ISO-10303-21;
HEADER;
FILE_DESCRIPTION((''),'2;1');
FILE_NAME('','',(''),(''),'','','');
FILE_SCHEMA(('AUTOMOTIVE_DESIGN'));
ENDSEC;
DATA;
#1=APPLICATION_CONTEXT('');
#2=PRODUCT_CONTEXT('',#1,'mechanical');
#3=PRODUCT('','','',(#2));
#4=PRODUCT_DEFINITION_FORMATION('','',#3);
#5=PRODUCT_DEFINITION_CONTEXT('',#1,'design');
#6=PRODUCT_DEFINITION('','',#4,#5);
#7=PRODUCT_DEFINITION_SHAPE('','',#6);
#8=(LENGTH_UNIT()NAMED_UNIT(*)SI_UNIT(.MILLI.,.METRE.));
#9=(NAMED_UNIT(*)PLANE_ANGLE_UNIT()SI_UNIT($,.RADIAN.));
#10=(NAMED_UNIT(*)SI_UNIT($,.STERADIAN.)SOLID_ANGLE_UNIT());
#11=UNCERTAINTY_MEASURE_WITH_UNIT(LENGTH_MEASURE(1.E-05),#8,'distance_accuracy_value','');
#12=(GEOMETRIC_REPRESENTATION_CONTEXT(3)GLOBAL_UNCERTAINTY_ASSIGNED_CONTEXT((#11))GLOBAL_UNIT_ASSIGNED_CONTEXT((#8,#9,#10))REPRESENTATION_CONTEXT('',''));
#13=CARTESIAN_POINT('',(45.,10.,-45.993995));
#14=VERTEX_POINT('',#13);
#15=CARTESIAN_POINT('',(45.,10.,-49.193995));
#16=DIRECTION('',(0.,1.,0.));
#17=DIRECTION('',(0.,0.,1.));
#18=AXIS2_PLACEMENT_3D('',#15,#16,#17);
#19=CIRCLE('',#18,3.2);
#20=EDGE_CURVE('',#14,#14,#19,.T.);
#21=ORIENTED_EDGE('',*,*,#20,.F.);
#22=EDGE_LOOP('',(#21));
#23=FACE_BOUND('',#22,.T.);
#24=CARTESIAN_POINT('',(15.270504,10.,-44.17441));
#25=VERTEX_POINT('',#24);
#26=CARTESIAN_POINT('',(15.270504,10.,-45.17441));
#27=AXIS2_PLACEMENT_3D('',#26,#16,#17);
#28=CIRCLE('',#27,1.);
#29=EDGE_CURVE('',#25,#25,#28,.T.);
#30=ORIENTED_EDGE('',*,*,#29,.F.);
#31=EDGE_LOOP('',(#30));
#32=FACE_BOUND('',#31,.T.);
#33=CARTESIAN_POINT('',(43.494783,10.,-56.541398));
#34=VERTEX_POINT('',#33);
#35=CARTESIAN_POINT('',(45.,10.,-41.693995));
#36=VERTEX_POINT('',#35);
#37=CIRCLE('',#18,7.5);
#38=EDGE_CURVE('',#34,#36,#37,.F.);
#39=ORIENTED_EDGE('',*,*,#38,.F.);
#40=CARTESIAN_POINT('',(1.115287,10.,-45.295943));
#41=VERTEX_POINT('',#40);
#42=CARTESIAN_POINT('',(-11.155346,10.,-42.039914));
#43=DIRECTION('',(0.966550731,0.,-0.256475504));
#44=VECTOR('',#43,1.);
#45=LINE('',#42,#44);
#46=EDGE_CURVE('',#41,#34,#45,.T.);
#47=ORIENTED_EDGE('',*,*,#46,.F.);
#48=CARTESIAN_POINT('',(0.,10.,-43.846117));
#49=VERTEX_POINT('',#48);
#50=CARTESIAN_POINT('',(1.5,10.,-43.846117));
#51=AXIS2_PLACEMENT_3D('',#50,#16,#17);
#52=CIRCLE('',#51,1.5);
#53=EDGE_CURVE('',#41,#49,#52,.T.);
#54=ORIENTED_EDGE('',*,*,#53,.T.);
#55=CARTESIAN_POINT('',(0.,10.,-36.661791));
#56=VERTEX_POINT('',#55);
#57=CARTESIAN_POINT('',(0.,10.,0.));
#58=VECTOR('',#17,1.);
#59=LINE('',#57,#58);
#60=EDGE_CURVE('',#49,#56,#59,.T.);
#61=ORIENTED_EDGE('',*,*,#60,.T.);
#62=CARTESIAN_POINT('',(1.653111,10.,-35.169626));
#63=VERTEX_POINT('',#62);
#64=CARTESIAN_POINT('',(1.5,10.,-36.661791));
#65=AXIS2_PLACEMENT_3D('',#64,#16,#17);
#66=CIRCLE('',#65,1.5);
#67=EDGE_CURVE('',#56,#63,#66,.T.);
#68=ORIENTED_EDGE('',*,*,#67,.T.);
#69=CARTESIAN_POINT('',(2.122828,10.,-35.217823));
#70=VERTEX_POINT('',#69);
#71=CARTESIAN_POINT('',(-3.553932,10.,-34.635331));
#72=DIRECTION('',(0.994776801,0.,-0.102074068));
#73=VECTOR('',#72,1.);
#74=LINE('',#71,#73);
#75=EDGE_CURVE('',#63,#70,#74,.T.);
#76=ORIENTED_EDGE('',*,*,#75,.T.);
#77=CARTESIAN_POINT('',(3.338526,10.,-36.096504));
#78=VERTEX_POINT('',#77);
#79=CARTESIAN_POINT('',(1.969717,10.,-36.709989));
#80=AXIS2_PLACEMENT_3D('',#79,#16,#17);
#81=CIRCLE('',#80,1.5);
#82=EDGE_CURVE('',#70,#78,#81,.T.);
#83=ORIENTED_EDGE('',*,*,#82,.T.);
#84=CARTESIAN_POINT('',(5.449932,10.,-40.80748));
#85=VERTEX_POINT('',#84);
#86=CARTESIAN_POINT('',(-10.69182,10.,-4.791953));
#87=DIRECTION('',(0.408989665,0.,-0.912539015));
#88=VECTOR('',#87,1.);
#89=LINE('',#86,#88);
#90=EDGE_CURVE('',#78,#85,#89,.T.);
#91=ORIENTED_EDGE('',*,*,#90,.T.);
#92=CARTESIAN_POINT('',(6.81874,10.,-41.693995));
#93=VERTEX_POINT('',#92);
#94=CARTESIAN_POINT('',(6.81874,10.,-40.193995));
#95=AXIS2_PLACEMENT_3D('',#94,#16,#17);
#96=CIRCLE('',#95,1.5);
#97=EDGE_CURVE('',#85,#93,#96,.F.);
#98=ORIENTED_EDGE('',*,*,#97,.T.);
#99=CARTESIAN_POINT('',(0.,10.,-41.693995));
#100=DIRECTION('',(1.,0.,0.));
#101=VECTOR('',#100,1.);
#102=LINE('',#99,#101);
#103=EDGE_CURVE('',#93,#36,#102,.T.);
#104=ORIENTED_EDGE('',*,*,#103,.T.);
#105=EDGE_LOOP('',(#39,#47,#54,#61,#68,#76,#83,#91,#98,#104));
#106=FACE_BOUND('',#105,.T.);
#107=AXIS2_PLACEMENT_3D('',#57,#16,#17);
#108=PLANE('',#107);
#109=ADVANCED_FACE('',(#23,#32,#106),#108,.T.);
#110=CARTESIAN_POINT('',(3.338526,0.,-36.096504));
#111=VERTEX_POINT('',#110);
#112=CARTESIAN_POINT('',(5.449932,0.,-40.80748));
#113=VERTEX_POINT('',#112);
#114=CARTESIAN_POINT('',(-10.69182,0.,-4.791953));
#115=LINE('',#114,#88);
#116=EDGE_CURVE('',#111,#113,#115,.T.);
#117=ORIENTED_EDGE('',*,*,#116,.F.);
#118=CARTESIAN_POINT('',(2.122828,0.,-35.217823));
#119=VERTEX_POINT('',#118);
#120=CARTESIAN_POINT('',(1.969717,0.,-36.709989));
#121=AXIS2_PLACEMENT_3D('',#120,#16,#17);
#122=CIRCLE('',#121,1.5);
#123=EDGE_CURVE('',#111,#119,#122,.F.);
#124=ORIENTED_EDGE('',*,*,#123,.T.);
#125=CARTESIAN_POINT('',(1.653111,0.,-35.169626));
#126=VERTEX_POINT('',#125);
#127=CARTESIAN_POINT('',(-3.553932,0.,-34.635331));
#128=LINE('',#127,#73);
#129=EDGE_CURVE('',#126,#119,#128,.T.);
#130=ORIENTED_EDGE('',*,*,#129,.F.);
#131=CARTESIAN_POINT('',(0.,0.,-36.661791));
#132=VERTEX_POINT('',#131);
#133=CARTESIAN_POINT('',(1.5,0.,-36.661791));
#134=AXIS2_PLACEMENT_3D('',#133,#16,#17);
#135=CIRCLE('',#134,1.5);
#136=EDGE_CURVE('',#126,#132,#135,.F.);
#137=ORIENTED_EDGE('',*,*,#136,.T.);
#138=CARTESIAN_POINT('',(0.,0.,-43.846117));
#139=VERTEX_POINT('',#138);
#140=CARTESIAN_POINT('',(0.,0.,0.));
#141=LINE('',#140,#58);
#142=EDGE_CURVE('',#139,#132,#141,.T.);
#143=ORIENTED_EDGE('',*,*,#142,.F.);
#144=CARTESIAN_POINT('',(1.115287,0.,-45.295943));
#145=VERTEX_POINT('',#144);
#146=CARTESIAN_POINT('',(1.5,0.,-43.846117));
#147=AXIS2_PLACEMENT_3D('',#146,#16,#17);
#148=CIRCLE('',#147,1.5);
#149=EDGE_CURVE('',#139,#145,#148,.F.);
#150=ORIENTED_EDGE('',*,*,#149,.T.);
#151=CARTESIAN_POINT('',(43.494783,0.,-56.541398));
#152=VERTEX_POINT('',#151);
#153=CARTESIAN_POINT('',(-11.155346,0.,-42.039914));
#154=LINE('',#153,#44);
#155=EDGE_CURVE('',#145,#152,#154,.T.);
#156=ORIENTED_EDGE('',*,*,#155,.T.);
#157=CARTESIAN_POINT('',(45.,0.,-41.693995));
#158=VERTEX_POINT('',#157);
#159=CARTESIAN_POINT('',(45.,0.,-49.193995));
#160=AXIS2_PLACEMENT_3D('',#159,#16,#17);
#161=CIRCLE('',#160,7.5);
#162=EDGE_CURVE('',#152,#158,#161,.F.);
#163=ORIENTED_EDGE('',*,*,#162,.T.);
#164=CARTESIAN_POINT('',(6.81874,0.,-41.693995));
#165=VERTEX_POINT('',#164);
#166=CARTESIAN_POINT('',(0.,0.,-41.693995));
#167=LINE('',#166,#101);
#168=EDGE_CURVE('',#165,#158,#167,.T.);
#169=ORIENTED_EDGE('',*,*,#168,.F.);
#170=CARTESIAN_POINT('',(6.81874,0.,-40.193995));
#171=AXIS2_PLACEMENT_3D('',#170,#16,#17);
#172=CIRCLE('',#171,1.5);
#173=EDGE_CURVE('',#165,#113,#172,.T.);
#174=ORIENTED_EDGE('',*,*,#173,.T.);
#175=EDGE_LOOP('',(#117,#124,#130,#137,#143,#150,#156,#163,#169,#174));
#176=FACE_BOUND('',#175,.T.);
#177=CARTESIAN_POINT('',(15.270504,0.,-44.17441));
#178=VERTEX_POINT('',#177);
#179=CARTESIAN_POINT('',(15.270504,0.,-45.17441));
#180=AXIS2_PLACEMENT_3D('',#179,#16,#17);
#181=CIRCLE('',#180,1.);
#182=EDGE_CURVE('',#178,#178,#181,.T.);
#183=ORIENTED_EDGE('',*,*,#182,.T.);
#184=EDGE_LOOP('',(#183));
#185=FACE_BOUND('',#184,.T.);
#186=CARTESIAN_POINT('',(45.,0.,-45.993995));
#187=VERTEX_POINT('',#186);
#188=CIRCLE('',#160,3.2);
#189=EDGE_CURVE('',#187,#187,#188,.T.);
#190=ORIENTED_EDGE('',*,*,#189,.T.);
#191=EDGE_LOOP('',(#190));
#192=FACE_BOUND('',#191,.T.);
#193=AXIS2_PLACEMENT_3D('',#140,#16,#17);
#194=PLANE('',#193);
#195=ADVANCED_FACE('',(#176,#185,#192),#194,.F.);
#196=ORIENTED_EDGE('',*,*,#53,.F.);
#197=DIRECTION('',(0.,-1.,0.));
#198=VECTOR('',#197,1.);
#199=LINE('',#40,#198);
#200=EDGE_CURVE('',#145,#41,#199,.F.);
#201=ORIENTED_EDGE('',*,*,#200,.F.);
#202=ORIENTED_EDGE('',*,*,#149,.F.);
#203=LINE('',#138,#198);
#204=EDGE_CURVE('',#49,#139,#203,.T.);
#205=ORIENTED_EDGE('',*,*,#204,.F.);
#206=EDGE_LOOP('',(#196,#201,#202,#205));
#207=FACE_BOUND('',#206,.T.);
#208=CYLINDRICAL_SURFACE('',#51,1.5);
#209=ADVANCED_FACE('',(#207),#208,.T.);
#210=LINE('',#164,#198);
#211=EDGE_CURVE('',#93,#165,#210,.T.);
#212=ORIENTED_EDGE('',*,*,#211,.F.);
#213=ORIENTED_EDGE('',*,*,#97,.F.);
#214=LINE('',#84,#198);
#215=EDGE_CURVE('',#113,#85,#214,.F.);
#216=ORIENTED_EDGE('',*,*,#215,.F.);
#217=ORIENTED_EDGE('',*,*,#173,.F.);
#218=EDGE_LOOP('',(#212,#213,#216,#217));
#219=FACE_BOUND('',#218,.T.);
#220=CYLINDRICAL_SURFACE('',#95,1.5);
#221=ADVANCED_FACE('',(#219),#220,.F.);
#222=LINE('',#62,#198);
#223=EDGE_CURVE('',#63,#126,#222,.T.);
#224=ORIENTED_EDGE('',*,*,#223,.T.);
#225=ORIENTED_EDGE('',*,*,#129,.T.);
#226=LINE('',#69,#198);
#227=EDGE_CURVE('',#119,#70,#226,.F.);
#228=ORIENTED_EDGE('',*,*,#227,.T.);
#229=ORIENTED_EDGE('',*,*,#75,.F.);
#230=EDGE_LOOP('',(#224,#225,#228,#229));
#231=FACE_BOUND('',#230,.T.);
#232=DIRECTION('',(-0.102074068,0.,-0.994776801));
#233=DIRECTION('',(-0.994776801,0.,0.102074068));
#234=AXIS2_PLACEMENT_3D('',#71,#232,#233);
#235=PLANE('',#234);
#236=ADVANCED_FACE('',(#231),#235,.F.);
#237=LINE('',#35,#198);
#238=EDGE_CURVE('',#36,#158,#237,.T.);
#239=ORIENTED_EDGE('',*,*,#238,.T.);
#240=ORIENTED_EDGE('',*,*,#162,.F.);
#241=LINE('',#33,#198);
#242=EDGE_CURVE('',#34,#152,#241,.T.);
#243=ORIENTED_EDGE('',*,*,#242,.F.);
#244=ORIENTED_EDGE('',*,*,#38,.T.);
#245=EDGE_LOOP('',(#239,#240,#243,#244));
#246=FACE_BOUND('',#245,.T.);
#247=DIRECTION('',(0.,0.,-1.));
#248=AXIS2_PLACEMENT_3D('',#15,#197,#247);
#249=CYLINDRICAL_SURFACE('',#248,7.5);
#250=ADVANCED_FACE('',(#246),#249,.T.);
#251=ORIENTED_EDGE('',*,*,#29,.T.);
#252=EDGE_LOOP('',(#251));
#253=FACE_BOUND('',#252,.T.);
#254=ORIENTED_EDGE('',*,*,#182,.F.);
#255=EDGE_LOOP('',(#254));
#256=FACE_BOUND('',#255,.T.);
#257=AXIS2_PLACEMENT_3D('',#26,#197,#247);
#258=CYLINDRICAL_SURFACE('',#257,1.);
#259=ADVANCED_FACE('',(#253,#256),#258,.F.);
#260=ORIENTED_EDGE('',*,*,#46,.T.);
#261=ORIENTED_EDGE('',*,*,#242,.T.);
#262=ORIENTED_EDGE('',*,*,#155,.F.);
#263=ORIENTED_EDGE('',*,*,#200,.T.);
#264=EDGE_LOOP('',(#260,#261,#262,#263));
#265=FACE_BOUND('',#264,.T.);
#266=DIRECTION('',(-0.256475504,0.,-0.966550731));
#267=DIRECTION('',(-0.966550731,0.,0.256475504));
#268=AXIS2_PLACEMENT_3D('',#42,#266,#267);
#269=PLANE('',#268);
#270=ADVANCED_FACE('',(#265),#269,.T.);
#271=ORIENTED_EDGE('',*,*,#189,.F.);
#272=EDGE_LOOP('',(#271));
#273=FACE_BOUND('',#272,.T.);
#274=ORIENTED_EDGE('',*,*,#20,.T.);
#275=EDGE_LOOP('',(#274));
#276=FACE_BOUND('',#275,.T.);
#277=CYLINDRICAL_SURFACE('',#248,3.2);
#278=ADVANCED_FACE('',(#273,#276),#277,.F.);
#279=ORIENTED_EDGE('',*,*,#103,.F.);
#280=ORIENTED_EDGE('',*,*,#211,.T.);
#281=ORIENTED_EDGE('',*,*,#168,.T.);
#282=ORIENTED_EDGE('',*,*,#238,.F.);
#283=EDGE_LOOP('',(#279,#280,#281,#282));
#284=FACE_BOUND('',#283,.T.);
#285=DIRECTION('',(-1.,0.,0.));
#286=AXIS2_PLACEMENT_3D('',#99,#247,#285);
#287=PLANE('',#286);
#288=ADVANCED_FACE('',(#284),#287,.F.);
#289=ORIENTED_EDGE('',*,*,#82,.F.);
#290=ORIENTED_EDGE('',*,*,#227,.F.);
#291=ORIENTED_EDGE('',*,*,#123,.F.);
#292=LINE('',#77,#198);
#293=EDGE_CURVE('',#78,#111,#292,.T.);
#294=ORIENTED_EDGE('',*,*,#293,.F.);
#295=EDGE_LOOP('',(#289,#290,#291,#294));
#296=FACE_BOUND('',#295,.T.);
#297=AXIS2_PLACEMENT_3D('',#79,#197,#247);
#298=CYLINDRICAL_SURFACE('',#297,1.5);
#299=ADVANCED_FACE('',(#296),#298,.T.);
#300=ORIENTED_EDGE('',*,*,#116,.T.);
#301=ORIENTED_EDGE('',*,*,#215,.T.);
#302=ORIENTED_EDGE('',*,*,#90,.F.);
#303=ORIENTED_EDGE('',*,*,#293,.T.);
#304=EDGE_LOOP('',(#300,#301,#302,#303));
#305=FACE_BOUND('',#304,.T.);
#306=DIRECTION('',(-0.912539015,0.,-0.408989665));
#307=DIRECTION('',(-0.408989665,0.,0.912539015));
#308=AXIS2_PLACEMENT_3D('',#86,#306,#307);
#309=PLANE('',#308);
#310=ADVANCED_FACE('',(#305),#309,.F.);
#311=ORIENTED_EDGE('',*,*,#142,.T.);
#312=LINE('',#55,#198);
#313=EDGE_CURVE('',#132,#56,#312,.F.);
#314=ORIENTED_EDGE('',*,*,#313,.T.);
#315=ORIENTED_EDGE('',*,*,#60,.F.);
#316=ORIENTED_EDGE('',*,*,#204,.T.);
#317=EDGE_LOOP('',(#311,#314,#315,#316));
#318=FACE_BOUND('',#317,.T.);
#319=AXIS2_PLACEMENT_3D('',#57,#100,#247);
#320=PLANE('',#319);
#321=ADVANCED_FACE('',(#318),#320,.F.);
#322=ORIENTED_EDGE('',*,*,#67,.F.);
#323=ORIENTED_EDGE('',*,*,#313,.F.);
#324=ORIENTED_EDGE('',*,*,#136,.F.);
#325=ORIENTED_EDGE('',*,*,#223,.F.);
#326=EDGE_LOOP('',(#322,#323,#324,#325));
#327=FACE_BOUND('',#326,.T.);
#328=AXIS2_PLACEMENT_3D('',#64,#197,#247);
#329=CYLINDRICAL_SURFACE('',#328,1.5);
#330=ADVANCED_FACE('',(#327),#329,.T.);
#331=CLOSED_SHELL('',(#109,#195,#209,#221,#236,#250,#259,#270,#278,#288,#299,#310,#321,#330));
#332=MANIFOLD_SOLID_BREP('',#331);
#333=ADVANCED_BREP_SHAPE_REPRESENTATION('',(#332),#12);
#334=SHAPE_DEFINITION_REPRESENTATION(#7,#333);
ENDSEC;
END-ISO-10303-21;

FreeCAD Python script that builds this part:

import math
import FreeCAD as App
import Part
import Sketcher

V = App.Vector


def edges_at(feature, points):
    """Names of the edges that pass closest to the given points."""
    edges = feature.Shape.Edges
    near = lambda p: min(range(len(edges)), key=lambda i: edges[i].distToShape(Part.Vertex(*p))[0])
    return sorted({f"Edge{near(p) + 1}" for p in points})

doc = App.newDocument("Part")
body = doc.addObject("PartDesign::Body", "Body")

# Sketch on XZ plane
sketch1 = body.newObject("Sketcher::SketchObject", "Sketch")
sketch1.AttachmentSupport = (doc.getObject("XZ_Plane"), [""])
sketch1.MapMode = "FlatFace"
sketch1.addGeometry([
    Part.LineSegment(V(43.5, -56.5, 0), V(0, -45, 0)),  # 0
    Part.LineSegment(V(0, -45, 0), V(0, -35, 0)),  # 1
    Part.LineSegment(V(0, -35, 0), V(3, -35.3, 0)),  # 2
    Part.LineSegment(V(3, -35.3, 0), V(5.8, -41.7, 0)),  # 3
    Part.LineSegment(V(5.8, -41.7, 0), V(45, -41.7, 0)),  # 4
    Part.ArcOfCircle(Part.Circle(V(45, -49.2, 0), V(0, 0, 1), 7.5), math.radians(-102), math.radians(90)),  # 5
    Part.Circle(V(15.3, -45.2, 0), V(0, 0, 1), 1),  # 6
    Part.Circle(V(45, -49.2, 0), V(0, 0, 1), 3.2),  # 7
], False)
sketch1.addConstraint([
    Sketcher.Constraint("Coincident", 0, 2, 1, 1),
    Sketcher.Constraint("Coincident", 1, 2, 2, 1),
    Sketcher.Constraint("Coincident", 2, 2, 3, 1),
    Sketcher.Constraint("Coincident", 3, 2, 4, 1),
    Sketcher.Constraint("Tangent", 4, 2, 5, 2),
    Sketcher.Constraint("Coincident", 5, 1, 0, 1),
    Sketcher.Constraint("Vertical", 1),
    Sketcher.Constraint("Horizontal", 4),
    Sketcher.Constraint("Coincident", 7, 3, 5, 3),
    Sketcher.Constraint("PointOnObject", 0, 2, -2),
    Sketcher.Constraint("Diameter", 6, 2.0),
    Sketcher.Constraint("Diameter", 7, 6.4),
    Sketcher.Constraint("Radius", 5, 7.5),
    Sketcher.Constraint("DistanceY", 1, 1, 1, 2, 10.0),
    Sketcher.Constraint("Distance", 0, 45.0),
    Sketcher.Constraint("Distance", 2, 3.0),
    Sketcher.Constraint("Distance", 3, 7.0),
    Sketcher.Constraint("DistanceX", -1, 1, 5, 3, 45.0),
    Sketcher.Constraint("DistanceY", 0, 2, -1, 1, 45.0),
    Sketcher.Constraint("DistanceX", 4, 1, 4, 2, 39.152742),
    Sketcher.Constraint("DistanceY", 6, 3, -1, 1, 45.17441),
    Sketcher.Constraint("DistanceX", -1, 1, 2, 2, 2.98433),
    Sketcher.Constraint("DistanceX", 6, 3, 5, 1, 28.224279),
])
pad1 = body.newObject("PartDesign::Pad", "Pad")
pad1.Profile = sketch1
pad1.Length = 10
pad1.Reversed = True
doc.recompute()

fillet = body.newObject("PartDesign::Fillet", "Fillet")
fillet.Base = (pad1, edges_at(pad1, [
    (5.847, 5, -41.694),
    (2.984, 5, -35.306),
    (0, 5, -35),
    (0, 5, -45),
]))
fillet.Radius = 1.5

doc.recompute()
